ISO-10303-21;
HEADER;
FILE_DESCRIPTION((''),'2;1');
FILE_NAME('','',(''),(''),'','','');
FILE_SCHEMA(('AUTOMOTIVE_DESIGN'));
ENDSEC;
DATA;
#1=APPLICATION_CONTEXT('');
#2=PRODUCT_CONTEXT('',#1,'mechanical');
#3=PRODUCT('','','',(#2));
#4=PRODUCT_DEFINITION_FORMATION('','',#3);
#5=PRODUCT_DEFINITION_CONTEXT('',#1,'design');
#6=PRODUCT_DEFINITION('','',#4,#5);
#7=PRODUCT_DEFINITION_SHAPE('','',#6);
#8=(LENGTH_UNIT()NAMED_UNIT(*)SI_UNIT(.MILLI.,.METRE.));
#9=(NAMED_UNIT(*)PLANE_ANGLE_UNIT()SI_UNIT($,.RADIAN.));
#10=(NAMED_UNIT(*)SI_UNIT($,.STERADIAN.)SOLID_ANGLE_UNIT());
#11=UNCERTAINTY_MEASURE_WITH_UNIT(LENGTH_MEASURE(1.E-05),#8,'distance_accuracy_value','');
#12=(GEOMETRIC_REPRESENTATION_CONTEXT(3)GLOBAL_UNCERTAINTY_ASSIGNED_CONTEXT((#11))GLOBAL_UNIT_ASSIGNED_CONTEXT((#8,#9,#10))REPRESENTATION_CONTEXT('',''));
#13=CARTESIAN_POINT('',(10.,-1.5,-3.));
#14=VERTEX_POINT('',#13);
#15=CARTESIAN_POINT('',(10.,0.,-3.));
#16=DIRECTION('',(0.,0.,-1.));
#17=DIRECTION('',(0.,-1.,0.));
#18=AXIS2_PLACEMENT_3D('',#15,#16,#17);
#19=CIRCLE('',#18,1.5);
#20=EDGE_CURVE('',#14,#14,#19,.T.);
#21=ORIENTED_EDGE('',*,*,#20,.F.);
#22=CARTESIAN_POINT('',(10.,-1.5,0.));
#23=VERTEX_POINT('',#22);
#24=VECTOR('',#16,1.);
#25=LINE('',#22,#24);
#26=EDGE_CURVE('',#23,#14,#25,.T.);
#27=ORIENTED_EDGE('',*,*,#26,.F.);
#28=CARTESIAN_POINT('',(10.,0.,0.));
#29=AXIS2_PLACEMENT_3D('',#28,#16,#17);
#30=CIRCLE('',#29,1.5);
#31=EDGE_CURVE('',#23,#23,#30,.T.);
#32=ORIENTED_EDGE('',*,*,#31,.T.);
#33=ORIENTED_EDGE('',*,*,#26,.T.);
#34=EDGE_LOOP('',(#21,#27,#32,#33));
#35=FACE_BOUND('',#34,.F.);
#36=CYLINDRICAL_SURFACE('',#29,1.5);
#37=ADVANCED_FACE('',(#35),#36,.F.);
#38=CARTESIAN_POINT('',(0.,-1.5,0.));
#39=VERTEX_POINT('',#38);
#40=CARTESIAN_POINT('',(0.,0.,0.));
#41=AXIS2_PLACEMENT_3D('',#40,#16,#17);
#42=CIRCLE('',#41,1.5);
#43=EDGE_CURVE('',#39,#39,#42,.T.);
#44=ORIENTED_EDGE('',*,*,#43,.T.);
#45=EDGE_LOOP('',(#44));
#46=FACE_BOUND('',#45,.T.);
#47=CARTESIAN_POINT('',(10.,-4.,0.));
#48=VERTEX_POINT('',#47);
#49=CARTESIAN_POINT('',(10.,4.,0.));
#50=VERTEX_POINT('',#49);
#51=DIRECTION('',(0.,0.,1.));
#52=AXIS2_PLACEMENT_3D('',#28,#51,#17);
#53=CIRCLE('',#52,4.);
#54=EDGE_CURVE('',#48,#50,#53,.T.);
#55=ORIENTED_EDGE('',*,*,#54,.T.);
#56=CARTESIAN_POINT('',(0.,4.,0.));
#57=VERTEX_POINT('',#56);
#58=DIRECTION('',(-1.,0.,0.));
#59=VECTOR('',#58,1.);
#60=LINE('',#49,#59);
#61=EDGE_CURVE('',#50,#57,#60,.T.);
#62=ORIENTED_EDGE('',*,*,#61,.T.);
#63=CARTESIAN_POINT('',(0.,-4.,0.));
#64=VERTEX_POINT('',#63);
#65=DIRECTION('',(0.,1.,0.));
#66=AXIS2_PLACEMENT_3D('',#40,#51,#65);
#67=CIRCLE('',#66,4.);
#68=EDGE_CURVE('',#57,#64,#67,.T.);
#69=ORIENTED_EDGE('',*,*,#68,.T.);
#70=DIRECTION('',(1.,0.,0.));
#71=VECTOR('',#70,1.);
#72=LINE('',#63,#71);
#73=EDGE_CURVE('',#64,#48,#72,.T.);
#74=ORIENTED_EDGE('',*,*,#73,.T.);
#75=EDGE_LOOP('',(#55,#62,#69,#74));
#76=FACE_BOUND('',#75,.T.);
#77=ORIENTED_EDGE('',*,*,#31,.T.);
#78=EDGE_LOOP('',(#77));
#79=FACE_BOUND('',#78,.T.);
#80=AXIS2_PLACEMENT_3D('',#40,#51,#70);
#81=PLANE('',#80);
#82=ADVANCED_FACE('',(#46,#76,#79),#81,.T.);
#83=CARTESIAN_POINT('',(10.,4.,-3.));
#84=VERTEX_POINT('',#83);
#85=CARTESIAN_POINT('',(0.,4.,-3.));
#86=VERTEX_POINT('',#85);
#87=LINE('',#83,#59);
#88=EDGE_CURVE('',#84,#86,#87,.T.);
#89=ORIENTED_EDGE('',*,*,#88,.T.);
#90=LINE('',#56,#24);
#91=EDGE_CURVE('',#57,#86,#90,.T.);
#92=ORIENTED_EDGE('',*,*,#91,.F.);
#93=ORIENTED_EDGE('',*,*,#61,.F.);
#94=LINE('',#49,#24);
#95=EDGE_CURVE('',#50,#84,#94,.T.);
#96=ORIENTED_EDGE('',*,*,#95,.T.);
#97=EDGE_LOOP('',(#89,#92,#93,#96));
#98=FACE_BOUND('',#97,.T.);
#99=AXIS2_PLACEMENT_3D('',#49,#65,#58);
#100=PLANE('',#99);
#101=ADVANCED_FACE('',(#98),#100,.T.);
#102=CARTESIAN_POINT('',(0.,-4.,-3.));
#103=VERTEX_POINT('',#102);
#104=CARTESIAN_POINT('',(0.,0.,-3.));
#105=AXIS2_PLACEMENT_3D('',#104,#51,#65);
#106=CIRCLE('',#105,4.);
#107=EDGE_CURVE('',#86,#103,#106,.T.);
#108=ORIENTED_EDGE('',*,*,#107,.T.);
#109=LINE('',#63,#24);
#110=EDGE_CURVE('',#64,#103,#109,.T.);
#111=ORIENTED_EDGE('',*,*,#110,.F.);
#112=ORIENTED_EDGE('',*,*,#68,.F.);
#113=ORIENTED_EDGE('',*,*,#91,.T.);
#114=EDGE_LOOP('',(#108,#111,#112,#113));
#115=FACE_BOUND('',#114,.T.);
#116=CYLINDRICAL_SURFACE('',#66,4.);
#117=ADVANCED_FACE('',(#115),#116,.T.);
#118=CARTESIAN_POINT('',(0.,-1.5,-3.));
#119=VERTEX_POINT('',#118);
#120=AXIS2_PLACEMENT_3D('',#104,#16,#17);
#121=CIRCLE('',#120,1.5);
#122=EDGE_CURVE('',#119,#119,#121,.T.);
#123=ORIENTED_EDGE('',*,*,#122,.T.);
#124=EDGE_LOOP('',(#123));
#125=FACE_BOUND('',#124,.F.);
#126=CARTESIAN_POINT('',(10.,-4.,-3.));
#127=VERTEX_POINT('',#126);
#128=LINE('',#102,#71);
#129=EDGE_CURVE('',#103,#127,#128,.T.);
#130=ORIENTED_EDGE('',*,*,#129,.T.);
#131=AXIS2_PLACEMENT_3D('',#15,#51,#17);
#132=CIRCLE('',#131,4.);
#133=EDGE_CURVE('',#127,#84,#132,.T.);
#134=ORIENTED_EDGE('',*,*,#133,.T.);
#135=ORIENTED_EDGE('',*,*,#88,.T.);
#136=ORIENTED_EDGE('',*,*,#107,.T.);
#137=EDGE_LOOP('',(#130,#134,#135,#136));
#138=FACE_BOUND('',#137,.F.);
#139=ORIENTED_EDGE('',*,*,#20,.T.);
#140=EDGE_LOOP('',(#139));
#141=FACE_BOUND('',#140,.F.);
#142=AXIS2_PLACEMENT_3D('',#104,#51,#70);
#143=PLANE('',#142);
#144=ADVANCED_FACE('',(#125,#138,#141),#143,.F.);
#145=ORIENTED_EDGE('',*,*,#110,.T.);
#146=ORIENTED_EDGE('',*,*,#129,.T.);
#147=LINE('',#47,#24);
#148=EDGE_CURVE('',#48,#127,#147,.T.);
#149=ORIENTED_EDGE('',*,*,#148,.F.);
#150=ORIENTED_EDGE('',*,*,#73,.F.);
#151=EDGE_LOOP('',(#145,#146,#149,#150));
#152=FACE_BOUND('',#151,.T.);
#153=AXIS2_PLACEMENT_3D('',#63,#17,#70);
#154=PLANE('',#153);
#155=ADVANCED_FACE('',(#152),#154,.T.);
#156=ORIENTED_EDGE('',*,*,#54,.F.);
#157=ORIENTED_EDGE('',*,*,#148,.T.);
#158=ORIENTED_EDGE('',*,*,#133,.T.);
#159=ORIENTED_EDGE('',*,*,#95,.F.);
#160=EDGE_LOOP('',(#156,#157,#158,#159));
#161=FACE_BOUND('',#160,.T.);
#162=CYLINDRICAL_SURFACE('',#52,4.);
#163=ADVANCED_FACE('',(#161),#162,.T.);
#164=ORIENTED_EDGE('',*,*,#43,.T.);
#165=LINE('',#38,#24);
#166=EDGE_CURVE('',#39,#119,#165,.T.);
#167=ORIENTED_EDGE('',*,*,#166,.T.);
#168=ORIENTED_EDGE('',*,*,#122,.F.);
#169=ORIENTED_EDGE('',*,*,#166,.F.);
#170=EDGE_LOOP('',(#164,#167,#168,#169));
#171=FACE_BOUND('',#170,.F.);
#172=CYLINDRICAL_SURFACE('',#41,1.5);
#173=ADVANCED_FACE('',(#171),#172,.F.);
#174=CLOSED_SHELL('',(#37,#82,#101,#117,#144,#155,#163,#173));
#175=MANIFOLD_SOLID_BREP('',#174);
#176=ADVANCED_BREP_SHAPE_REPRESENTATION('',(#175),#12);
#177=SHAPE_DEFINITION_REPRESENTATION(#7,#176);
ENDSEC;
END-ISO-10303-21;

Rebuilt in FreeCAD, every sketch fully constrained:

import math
import FreeCAD as App
import Part
import Sketcher
from FreeCAD import Vector
Q = App.Units.Quantity

doc = App.newDocument("Part")
body = doc.addObject("PartDesign::Body", "Body")

# Sketch on XY plane
sketch1 = doc.addObject("Sketcher::SketchObject", "Sketch")
body.addObject(sketch1)
sketch1.AttachmentSupport = (doc.XY_Plane, [""])
sketch1.MapMode = "FlatFace"
sketch1.addGeometry([
    Part.ArcOfCircle(Part.Circle(Vector(0, 0, 0), Vector(0, 0, 1), 4), math.radians(90), math.radians(270)),
    Part.LineSegment(Vector(0, -4, 0), Vector(10, -4, 0)),
    Part.ArcOfCircle(Part.Circle(Vector(10, 0, 0), Vector(0, 0, 1), 4), math.radians(-90), math.radians(90)),
    Part.LineSegment(Vector(10, 4, 0), Vector(0, 4, 0)),
], False)
sketch1.addConstraint([
    Sketcher.Constraint("Tangent", 0, 2, 1, 1),
    Sketcher.Constraint("Tangent", 1, 2, 2, 1),
    Sketcher.Constraint("Tangent", 2, 2, 3, 1),
    Sketcher.Constraint("Tangent", 3, 2, 0, 1),
    Sketcher.Constraint("Horizontal", 1),
    Sketcher.Constraint("Horizontal", 3),
    Sketcher.Constraint("Coincident", 0, 3, -1, 1),
    Sketcher.Constraint("Radius", 0, Q("4 mm")),
    Sketcher.Constraint("DistanceX", 1, 1, 1, 2, Q("10 mm")),
])
pad1 = doc.addObject("PartDesign::Pad", "Pad")
body.addObject(pad1)
pad1.Profile = sketch1
pad1.Length = 3
pad1.Reversed = True

# Sketch on XY plane
sketch2 = doc.addObject("Sketcher::SketchObject", "Sketch001")
body.addObject(sketch2)
sketch2.AttachmentSupport = (doc.XY_Plane, [""])
sketch2.MapMode = "FlatFace"
sketch2.addGeometry([
    Part.Circle(Vector(0, 0, 0), Vector(0, 0, 1), 1.5),
    Part.Circle(Vector(10, 0, 0), Vector(0, 0, 1), 1.5),
], False)
sketch2.addConstraint([
    Sketcher.Constraint("Coincident", 0, 3, -1, 1),
    Sketcher.Constraint("Equal", 0, 1),
    Sketcher.Constraint("PointOnObject", 1, 3, -1),
    Sketcher.Constraint("Diameter", 0, Q("3 mm")),
    Sketcher.Constraint("DistanceX", -1, 1, 1, 3, Q("10 mm")),
])
doc.recompute()
hole = doc.addObject("PartDesign::Hole", "Hole")
body.addObject(hole)
hole.Profile = sketch2
hole.ThreadType = "None"
hole.Diameter = 3
hole.DepthType = "Dimension"
hole.Depth = 8
hole.DrillPoint = "Angled"
hole.DrillPointAngle = 118

doc.recompute()
